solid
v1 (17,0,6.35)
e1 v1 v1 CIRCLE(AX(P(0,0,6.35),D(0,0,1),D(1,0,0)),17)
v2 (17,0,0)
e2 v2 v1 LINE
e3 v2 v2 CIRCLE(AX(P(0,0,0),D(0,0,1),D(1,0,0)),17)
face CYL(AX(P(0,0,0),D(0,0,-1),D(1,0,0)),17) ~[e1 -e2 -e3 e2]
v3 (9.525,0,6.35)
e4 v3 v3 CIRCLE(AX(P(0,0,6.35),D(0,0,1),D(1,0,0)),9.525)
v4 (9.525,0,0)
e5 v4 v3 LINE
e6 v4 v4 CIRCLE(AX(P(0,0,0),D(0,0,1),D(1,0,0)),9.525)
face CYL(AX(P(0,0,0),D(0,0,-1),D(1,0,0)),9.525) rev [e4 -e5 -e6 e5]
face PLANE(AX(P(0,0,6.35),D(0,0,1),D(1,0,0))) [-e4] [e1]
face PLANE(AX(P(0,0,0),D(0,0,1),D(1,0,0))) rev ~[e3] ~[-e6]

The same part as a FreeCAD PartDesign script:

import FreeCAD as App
import Part
import Sketcher
from FreeCAD import Vector
Q = App.Units.Quantity

doc = App.newDocument("Part")
body = doc.addObject("PartDesign::Body", "Body")

# Sketch on XY plane
sketch1 = body.newObject("Sketcher::SketchObject", "Sketch")
sketch1.AttachmentSupport = (doc.getObject("XY_Plane"), [""])
sketch1.MapMode = "FlatFace"
sketch1.addGeometry([
    Part.Circle(Vector(0, 0, 0), Vector(0, 0, 1), 17),
    Part.Circle(Vector(0, 0, 0), Vector(0, 0, 1), 10),
], False)
sketch1.addConstraint([
    Sketcher.Constraint("Coincident", 0, 3, -1, 1),
    Sketcher.Constraint("Coincident", 1, 3, -1, 1),
    Sketcher.Constraint("Diameter", 1, Q("0.75 in")),
    Sketcher.Constraint("Diameter", 0, 34.0),
])
pad1 = body.newObject("PartDesign::Pad", "Pad")
pad1.Profile = sketch1
pad1.Length = Q("0.25 in")

doc.recompute()
